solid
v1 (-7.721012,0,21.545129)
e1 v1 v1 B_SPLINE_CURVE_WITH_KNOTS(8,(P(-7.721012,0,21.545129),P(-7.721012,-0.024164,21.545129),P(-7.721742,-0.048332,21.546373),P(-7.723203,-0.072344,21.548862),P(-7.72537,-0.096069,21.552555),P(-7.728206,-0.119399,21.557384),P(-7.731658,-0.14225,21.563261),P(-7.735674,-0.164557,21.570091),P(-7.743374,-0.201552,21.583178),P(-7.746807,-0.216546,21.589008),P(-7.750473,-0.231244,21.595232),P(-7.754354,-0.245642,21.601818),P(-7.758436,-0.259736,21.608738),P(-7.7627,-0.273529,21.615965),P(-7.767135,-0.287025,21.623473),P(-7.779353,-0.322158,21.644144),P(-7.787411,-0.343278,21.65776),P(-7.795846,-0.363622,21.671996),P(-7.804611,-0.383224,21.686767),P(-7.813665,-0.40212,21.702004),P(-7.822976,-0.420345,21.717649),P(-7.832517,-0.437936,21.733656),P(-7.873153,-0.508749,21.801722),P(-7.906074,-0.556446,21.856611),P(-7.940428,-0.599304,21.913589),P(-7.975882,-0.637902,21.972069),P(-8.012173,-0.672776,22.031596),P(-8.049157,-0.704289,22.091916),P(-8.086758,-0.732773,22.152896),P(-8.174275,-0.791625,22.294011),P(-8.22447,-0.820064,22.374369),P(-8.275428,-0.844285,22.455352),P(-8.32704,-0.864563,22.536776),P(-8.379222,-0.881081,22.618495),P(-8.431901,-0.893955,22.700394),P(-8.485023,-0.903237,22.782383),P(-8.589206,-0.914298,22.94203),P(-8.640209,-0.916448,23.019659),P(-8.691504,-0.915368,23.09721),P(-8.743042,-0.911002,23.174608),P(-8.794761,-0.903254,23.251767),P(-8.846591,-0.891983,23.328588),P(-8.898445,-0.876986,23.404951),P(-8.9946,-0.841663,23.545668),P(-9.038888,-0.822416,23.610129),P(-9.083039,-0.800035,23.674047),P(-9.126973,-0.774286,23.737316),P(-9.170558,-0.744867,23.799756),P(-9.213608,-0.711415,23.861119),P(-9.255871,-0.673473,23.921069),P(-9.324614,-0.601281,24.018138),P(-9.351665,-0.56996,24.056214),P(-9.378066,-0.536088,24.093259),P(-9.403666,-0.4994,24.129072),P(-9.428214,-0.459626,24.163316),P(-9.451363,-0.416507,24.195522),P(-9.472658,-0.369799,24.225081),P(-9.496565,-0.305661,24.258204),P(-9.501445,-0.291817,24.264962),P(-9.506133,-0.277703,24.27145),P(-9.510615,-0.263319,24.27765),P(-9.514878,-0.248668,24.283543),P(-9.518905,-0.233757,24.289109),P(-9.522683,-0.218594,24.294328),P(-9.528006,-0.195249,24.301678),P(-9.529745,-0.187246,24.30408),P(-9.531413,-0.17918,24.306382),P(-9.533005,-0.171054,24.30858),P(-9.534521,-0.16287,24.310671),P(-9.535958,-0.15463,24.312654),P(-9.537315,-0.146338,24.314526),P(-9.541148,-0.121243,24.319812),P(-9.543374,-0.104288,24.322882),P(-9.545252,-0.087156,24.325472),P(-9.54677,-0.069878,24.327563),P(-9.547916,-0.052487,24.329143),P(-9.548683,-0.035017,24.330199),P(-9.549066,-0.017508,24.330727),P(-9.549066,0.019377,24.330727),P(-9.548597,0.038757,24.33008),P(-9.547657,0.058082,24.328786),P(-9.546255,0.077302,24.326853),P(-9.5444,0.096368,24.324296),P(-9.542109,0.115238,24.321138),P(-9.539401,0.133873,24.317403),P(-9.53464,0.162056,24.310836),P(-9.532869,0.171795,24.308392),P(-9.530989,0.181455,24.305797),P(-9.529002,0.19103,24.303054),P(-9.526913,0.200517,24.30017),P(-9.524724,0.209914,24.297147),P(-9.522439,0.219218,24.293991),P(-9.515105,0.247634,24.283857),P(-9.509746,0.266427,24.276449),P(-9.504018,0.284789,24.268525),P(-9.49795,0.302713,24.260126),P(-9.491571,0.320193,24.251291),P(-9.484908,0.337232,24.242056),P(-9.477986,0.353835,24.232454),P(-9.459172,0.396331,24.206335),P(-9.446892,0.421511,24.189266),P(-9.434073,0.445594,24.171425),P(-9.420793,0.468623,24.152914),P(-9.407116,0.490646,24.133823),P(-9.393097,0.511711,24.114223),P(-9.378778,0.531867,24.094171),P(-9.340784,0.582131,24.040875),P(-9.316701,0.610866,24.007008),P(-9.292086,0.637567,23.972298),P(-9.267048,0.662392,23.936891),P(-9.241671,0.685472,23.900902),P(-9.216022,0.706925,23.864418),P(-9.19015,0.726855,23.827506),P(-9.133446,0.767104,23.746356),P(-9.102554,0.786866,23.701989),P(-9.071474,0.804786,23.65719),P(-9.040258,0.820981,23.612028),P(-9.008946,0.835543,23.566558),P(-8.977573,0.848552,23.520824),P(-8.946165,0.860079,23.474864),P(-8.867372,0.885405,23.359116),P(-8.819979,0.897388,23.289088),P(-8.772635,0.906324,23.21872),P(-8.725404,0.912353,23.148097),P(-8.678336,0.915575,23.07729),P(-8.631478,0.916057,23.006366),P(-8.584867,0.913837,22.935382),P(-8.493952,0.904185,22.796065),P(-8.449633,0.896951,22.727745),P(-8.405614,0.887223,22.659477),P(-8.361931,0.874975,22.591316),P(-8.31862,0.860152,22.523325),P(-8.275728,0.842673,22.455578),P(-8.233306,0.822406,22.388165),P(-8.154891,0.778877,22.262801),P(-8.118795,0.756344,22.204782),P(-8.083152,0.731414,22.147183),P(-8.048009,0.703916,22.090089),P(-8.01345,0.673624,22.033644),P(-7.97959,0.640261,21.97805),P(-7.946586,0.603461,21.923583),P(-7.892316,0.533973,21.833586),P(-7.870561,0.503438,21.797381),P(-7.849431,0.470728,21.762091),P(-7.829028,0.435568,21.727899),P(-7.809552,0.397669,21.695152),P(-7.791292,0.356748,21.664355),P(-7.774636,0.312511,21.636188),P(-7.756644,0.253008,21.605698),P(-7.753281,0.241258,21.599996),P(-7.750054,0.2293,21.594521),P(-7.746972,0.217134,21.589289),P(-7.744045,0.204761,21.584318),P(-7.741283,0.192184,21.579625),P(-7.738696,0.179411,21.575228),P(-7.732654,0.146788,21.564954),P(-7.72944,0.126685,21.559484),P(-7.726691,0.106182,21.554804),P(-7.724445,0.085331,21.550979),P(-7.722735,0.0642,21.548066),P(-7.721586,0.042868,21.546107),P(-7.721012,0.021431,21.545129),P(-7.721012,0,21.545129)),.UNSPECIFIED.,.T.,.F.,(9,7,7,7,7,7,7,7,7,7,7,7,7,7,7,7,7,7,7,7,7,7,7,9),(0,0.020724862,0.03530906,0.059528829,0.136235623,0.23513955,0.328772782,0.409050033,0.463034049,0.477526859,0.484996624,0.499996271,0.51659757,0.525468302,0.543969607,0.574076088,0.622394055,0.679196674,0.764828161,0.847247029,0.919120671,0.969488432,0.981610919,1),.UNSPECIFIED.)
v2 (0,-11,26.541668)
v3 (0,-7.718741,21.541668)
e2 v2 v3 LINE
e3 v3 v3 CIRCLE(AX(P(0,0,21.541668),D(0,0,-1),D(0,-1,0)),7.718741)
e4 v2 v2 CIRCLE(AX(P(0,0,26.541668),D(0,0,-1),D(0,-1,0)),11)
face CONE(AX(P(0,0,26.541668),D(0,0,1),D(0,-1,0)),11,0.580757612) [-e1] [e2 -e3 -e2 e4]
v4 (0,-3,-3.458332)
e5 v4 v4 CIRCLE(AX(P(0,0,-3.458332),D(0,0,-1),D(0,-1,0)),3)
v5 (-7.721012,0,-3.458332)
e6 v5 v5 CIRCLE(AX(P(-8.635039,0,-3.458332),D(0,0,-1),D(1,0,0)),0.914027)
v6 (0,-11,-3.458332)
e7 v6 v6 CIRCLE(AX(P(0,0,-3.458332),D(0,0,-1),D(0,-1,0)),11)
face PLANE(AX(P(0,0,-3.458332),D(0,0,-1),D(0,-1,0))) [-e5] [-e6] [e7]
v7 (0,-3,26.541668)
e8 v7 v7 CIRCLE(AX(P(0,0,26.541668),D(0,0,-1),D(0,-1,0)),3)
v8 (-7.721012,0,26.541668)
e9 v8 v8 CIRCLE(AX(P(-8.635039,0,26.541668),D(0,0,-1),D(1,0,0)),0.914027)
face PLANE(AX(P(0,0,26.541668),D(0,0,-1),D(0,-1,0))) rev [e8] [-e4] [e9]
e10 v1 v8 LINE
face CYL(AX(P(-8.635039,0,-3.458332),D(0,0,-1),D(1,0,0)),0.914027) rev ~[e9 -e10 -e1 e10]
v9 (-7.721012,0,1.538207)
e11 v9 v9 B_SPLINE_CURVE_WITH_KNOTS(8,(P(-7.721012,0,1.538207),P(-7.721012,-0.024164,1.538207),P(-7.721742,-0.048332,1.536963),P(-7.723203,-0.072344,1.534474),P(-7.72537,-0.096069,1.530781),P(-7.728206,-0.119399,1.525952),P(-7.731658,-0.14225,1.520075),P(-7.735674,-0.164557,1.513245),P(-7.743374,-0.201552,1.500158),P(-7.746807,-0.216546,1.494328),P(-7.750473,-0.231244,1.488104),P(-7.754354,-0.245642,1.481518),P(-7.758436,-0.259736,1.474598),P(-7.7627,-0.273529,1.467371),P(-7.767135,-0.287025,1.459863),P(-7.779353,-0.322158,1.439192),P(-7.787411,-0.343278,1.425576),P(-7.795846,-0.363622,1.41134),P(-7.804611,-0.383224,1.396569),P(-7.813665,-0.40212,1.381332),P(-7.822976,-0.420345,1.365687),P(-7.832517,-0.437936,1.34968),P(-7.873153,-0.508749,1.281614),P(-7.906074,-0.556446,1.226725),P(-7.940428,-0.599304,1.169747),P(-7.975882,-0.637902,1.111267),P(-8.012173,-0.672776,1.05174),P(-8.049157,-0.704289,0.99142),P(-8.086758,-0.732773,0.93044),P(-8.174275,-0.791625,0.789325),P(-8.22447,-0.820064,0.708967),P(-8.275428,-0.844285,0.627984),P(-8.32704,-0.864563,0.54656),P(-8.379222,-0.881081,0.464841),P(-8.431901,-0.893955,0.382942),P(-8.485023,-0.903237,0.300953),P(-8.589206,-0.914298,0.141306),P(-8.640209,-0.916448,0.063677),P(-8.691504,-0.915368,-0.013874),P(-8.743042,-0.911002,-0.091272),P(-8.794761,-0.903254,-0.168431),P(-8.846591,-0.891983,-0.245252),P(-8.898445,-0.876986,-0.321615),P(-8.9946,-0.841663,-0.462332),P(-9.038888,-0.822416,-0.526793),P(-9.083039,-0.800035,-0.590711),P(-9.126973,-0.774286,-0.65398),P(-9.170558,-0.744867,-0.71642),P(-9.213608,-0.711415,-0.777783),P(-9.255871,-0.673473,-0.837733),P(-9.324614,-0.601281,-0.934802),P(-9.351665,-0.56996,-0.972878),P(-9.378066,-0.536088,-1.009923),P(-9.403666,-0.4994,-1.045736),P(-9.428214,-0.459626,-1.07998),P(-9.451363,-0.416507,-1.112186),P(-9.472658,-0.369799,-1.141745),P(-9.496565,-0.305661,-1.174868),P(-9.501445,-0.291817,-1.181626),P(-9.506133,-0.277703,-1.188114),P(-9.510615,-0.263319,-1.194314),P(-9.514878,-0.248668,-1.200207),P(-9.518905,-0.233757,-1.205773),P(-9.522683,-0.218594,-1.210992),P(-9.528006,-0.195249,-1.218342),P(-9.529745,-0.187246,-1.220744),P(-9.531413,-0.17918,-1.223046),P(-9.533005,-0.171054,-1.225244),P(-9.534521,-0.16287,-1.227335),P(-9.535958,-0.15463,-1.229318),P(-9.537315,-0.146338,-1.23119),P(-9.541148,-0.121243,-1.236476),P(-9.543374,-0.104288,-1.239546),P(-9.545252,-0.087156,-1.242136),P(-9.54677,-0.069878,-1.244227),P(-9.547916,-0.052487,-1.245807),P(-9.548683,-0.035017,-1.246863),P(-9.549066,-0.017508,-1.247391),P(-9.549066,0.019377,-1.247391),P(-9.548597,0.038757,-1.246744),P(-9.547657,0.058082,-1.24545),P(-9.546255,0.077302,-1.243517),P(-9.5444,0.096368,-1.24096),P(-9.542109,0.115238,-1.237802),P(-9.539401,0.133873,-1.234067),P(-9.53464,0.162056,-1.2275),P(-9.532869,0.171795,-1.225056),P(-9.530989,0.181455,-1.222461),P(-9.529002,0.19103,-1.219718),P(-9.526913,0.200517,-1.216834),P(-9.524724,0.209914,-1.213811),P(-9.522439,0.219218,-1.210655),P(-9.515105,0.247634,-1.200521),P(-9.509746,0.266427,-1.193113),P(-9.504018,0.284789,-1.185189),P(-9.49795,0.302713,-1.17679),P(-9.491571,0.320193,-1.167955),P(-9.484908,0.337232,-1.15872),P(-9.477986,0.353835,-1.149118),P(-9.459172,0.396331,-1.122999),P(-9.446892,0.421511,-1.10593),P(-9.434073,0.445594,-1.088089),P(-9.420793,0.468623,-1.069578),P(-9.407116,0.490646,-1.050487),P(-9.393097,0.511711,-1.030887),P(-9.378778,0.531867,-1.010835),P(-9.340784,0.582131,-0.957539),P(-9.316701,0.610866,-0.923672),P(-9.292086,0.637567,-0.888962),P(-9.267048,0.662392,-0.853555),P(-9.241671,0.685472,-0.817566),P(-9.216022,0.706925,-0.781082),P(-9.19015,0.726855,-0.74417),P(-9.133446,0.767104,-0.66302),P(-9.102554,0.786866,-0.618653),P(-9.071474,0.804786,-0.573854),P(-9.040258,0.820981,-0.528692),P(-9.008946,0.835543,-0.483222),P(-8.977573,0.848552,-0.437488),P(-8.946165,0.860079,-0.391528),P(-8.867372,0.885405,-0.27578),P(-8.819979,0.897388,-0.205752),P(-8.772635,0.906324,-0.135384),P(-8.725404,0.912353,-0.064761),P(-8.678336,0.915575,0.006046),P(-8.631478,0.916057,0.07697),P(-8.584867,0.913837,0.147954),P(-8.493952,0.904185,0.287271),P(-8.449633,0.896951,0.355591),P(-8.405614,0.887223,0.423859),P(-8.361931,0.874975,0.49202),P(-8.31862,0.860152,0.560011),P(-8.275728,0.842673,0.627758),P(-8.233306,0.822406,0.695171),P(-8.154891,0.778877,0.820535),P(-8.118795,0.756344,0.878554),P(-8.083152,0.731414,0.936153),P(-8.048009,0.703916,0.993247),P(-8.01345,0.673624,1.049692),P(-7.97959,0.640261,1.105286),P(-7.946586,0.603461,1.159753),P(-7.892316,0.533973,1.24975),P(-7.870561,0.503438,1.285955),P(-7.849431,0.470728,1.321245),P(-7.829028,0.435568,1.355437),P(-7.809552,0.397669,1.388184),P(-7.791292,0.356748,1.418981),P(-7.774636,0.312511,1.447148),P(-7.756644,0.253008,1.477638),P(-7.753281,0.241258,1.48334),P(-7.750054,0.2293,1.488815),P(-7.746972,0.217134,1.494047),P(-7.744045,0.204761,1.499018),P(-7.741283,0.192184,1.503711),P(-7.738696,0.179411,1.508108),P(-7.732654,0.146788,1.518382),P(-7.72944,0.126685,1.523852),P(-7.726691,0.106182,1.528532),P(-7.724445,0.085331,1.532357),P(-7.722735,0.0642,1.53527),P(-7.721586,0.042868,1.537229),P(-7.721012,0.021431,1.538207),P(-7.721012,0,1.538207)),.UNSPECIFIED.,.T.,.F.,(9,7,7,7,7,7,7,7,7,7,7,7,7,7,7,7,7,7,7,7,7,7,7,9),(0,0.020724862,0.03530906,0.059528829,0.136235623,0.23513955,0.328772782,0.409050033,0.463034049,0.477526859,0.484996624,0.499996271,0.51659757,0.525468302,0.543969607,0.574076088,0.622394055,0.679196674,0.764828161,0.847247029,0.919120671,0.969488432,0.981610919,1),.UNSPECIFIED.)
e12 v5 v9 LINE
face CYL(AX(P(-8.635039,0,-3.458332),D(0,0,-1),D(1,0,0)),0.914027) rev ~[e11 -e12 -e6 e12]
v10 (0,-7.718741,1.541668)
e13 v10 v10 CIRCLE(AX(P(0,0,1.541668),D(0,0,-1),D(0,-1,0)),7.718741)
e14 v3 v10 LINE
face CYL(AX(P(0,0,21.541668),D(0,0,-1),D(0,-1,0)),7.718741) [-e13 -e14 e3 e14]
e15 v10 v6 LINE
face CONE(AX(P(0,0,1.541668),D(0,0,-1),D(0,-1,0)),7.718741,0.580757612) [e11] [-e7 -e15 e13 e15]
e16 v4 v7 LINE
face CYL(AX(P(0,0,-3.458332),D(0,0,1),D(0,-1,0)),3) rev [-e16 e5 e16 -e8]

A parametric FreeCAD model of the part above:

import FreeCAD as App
import Part
import Sketcher

doc = App.newDocument("Part")
body = doc.addObject("PartDesign::Body", "Body")

# Sketch on YZ plane
sketch1 = body.newObject("Sketcher::SketchObject", "Sketch")
sketch1.AttachmentSupport = (doc.getObject("YZ_Plane"), [""])
sketch1.MapMode = "FlatFace"
sketch1.addGeometry([
    Part.LineSegment(App.Vector(-3, -3.458332, 0), App.Vector(-3, 26.541668, 0)),  # 0
    Part.LineSegment(App.Vector(-3, 26.541668, 0), App.Vector(-11, 26.541668, 0)),  # 1
    Part.LineSegment(App.Vector(-11, 26.541668, 0), App.Vector(-7.718741, 21.541668, 0)),  # 2
    Part.LineSegment(App.Vector(-7.718741, 21.541668, 0), App.Vector(-7.718741, 1.541668, 0)),  # 3
    Part.LineSegment(App.Vector(-7.718741, 1.541668, 0), App.Vector(-11, -3.458332, 0)),  # 4
    Part.LineSegment(App.Vector(-11, -3.458332, 0), App.Vector(-3, -3.458332, 0)),  # 5
], False)
sketch1.addConstraint([
    Sketcher.Constraint("Coincident", 0, 2, 1, 1),
    Sketcher.Constraint("Coincident", 1, 2, 2, 1),
    Sketcher.Constraint("Coincident", 2, 2, 3, 1),
    Sketcher.Constraint("Coincident", 3, 2, 4, 1),
    Sketcher.Constraint("Coincident", 4, 2, 5, 1),
    Sketcher.Constraint("Coincident", 5, 2, 0, 1),
    Sketcher.Constraint("Vertical", 0),
    Sketcher.Constraint("Horizontal", 1),
    Sketcher.Constraint("Vertical", 3),
    Sketcher.Constraint("Horizontal", 5),
    Sketcher.Constraint("Vertical", 1, 2, 4, 2),
    Sketcher.Constraint("Equal", 2, 4),
    Sketcher.Constraint("DistanceX", 1, 2, 1, 1, 8.0),
    Sketcher.Constraint("DistanceY", 0, 1, 0, 2, 30.0),
    Sketcher.Constraint("DistanceY", 3, 2, 3, 1, 20.0),
    Sketcher.Constraint("DistanceX", 0, 2, -1, 1, 3.0),
    Sketcher.Constraint("DistanceY", -1, 1, 0, 2, 26.541668),
    Sketcher.Constraint("DistanceX", 2, 2, -1, 1, 7.718741),
])
revolution = body.newObject("PartDesign::Revolution", "Revolution")
revolution.Profile = sketch1
revolution.ReferenceAxis = (sketch1, ["V_Axis"])
revolution.Angle = 360

# Sketch on XY plane
sketch2 = body.newObject("Sketcher::SketchObject", "Sketch001")
sketch2.AttachmentSupport = (doc.getObject("XY_Plane"), [""])
sketch2.MapMode = "FlatFace"
sketch2.AttachmentOffset = App.Placement(App.Vector(0, 0, -3.458332), App.Rotation())
sketch2.addGeometry(Part.Circle(App.Vector(-8.635039, 0, 0), App.Vector(0, 0, 1), 0.914027), False)
sketch2.addConstraint([
    Sketcher.Constraint("PointOnObject", 0, 3, -1),
    Sketcher.Constraint("Diameter", 0, 1.828054),
    Sketcher.Constraint("DistanceX", 0, 3, -1, 1, 8.635039),
])
pocket1 = body.newObject("PartDesign::Pocket", "Pocket")
pocket1.Profile = sketch2
pocket1.Length = 30
pocket1.Reversed = True

doc.recompute()
